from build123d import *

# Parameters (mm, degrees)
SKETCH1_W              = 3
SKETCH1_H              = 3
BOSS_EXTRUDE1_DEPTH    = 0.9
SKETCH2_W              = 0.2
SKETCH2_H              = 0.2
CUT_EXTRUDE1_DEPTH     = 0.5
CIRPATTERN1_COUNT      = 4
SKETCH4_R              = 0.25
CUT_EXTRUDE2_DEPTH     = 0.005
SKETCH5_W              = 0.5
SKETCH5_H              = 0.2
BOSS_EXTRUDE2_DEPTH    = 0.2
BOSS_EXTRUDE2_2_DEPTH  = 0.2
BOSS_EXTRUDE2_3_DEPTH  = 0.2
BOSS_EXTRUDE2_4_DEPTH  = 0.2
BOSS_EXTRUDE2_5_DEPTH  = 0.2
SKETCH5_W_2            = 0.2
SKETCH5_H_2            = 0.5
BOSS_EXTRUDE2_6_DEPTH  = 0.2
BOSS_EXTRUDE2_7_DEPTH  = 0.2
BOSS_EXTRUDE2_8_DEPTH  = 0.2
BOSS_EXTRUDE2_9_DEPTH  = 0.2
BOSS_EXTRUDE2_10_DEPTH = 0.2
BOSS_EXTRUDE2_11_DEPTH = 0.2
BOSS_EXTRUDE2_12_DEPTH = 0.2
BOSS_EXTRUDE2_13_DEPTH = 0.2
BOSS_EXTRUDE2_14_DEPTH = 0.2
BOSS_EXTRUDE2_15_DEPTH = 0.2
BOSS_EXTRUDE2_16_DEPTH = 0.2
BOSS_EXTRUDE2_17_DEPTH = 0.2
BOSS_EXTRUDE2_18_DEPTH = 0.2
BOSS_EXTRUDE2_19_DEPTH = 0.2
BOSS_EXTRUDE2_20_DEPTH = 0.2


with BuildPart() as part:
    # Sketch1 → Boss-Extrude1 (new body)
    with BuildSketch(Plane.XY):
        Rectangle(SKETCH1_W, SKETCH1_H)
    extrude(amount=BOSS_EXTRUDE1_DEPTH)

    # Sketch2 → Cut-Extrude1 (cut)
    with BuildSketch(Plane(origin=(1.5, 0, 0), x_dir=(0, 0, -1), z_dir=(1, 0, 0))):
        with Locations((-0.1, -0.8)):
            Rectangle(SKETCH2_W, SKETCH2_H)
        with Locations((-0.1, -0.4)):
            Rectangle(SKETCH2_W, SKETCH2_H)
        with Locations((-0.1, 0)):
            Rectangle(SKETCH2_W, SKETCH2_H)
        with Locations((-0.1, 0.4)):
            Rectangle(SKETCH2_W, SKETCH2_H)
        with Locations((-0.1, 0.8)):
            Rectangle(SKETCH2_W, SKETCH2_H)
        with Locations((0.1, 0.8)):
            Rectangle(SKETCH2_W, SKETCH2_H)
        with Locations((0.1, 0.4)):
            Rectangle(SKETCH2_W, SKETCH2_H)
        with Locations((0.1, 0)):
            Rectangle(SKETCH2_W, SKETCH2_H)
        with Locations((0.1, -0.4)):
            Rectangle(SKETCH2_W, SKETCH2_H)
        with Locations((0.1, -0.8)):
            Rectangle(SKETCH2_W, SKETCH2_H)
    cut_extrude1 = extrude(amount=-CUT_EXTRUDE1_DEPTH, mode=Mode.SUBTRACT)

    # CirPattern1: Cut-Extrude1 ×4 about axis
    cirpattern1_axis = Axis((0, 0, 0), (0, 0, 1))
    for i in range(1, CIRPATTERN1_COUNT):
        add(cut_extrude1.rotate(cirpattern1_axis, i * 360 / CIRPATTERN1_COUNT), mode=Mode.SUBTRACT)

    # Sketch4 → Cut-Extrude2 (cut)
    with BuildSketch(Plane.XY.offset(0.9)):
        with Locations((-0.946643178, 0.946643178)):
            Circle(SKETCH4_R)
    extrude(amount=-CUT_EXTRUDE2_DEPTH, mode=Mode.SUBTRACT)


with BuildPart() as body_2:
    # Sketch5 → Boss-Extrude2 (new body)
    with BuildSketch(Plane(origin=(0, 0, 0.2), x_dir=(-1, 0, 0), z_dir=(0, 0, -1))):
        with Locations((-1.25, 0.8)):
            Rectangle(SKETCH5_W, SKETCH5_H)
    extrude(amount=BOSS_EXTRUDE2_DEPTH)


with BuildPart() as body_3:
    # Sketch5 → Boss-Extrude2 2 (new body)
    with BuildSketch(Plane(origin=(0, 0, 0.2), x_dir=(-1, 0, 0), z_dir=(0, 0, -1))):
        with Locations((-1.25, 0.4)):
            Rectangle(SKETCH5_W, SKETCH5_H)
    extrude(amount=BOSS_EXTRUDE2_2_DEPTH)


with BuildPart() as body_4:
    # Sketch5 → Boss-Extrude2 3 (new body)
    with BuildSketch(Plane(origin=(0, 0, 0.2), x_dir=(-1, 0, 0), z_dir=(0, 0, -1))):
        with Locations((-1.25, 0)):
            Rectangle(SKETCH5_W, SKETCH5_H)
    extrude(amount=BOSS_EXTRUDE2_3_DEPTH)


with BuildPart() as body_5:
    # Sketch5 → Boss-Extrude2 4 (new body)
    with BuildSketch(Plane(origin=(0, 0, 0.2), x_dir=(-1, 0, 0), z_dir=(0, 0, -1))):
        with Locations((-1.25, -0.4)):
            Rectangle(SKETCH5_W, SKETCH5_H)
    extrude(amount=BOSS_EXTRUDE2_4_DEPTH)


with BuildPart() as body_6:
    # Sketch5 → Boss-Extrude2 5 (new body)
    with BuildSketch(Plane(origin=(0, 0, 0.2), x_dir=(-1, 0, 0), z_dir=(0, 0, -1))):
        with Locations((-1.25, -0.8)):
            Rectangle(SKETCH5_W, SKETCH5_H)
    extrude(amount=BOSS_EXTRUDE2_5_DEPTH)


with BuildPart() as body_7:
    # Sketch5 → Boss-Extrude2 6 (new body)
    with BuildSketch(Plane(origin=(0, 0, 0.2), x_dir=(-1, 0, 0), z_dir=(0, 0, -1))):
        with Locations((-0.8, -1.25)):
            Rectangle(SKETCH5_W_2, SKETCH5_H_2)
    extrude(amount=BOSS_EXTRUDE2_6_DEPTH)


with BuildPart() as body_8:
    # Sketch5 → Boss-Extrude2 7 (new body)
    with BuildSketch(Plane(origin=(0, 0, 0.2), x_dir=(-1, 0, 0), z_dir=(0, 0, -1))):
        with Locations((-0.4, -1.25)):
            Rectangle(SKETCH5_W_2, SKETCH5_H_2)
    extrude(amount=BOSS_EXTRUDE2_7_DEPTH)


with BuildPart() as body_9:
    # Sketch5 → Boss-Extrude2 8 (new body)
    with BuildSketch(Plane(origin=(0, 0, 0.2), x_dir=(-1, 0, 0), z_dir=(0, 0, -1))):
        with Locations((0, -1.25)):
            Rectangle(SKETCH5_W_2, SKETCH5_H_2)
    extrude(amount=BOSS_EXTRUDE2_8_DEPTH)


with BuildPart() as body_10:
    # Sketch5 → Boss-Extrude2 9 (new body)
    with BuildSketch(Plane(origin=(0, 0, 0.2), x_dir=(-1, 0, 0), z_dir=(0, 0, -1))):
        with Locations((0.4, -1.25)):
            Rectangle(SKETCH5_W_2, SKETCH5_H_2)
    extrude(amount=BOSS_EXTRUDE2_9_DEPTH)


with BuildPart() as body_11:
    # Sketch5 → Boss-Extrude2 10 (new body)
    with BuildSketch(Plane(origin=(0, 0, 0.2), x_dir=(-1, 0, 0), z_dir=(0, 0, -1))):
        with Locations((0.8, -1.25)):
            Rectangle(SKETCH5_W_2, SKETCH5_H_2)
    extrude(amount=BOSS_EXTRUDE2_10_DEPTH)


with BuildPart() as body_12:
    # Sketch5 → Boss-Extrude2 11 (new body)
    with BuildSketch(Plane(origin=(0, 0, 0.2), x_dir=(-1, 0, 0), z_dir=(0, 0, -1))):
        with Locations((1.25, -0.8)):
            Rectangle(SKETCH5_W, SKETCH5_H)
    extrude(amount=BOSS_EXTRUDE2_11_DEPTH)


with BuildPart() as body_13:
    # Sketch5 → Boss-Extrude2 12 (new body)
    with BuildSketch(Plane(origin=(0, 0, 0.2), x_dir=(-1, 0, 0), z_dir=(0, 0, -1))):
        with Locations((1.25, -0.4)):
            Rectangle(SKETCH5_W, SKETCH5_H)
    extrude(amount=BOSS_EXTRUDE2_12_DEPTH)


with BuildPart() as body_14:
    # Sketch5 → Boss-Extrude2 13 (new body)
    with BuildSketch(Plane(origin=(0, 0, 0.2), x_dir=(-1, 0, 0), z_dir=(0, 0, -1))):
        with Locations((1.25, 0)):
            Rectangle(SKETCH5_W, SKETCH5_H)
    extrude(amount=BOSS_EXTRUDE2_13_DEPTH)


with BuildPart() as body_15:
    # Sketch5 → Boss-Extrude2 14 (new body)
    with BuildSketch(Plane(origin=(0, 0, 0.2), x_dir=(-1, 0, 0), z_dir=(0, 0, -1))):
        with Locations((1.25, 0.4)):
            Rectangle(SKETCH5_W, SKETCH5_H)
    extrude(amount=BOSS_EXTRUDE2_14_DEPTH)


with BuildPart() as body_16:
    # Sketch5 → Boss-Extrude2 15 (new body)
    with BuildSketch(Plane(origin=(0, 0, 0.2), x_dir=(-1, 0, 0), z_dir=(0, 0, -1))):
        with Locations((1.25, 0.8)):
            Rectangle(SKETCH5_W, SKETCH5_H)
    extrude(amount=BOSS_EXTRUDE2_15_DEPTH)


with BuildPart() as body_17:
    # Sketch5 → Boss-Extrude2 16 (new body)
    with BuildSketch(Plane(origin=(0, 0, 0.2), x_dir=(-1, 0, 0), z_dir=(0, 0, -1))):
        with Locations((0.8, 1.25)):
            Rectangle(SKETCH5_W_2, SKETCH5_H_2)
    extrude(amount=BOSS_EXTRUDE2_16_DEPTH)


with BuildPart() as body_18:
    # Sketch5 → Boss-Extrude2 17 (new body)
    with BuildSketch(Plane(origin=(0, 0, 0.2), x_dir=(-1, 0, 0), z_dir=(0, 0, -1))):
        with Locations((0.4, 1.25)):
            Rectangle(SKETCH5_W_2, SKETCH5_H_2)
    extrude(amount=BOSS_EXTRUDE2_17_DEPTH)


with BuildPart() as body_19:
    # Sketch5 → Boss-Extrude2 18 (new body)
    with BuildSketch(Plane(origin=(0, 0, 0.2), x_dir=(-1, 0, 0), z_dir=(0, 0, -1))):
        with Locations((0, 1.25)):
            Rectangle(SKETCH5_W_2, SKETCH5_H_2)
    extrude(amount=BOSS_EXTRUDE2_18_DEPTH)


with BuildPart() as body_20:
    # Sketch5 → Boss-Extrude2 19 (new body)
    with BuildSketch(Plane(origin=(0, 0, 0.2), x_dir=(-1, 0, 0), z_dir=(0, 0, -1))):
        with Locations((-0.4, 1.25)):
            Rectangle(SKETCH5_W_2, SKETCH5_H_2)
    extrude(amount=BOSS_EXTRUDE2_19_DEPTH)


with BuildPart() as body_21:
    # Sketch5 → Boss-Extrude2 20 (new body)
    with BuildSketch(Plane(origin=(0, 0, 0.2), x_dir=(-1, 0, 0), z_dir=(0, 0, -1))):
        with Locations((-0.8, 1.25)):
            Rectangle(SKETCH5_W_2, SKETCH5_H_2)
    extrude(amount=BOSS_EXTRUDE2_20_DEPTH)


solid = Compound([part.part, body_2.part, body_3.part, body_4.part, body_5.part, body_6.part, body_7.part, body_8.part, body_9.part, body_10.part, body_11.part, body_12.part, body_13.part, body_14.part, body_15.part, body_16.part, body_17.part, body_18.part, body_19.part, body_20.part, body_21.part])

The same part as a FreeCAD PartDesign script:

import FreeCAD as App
import Part
import Sketcher
Q = App.Units.Quantity

doc = App.newDocument("Part")
params = doc.addObject("Spreadsheet::Sheet", "Params")
for row, (alias, value) in enumerate([
    ("sketch1_width", "3 mm"),
    ("pad1_length", "0.9 mm"),
    ("sketch2_width", "0.2 mm"),
    ("sketch2_height", "0.4 mm"),
    ("pocket1_length", "0.5 mm"),
    ("sketch3_diameter", "0.5 mm"),
    ("pocket2_length", "0.005 mm"),
    ("sketch4_width", "0.5 mm"),
    ("sketch4_height", "0.2 mm"),
    ("pad2_length", "0.2 mm"),
    ("sketch5_width", "0.5 mm"),
    ("sketch5_height", "0.2 mm"),
    ("pad3_length", "0.2 mm"),
    ("sketch6_width", "0.5 mm"),
    ("sketch6_height", "0.2 mm"),
    ("pad4_length", "0.2 mm"),
    ("sketch7_width", "0.5 mm"),
    ("sketch7_height", "0.2 mm"),
    ("pad5_length", "0.2 mm"),
    ("sketch8_width", "0.5 mm"),
    ("sketch8_height", "0.2 mm"),
    ("pad6_length", "0.2 mm"),
    ("sketch9_width", "0.2 mm"),
    ("sketch9_height", "0.5 mm"),
    ("pad7_length", "0.2 mm"),
    ("sketch10_width", "0.2 mm"),
    ("sketch10_height", "0.5 mm"),
    ("pad8_length", "0.2 mm"),
    ("sketch11_width", "0.2 mm"),
    ("sketch11_height", "0.5 mm"),
    ("pad9_length", "0.2 mm"),
    ("sketch12_width", "0.2 mm"),
    ("sketch12_height", "0.5 mm"),
    ("pad10_length", "0.2 mm"),
    ("sketch13_width", "0.2 mm"),
    ("sketch13_height", "0.5 mm"),
    ("pad11_length", "0.2 mm"),
    ("sketch14_width", "0.5 mm"),
    ("sketch14_height", "0.2 mm"),
    ("pad12_length", "0.2 mm"),
    ("sketch15_width", "0.5 mm"),
    ("sketch15_height", "0.2 mm"),
    ("pad13_length", "0.2 mm"),
    ("sketch16_width", "0.5 mm"),
    ("sketch16_height", "0.2 mm"),
    ("pad14_length", "0.2 mm"),
    ("sketch17_width", "0.5 mm"),
    ("sketch17_height", "0.2 mm"),
    ("pad15_length", "0.2 mm"),
    ("sketch18_width", "0.5 mm"),
    ("sketch18_height", "0.2 mm"),
    ("pad16_length", "0.2 mm"),
    ("sketch19_width", "0.2 mm"),
    ("sketch19_height", "0.5 mm"),
    ("pad17_length", "0.2 mm"),
    ("sketch20_width", "0.2 mm"),
    ("sketch20_height", "0.5 mm"),
    ("pad18_length", "0.2 mm"),
    ("sketch21_width", "0.2 mm"),
    ("sketch21_height", "0.5 mm"),
    ("pad19_length", "0.2 mm"),
    ("sketch22_width", "0.2 mm"),
    ("sketch22_height", "0.5 mm"),
    ("pad20_length", "0.2 mm"),
    ("sketch23_width", "0.2 mm"),
    ("sketch23_height", "0.5 mm"),
    ("pad21_length", "0.2 mm"),
], start=1):
    params.set(f"A{row}", alias)
    params.set(f"B{row}", "=" + value)
    params.setAlias(f"B{row}", alias)

body = doc.addObject("PartDesign::Body", "Body")

# Sketch on XY plane
sketch1 = body.newObject("Sketcher::SketchObject", "Sketch")
sketch1.AttachmentSupport = (doc.getObject("XY_Plane"), [""])
sketch1.MapMode = "FlatFace"
sketch1.addGeometry([
    Part.LineSegment(App.Vector(-1.5, 1.5, 0), App.Vector(-1.5, -1.5, 0)),
    Part.LineSegment(App.Vector(-1.5, -1.5, 0), App.Vector(1.5, -1.5, 0)),
    Part.LineSegment(App.Vector(1.5, -1.5, 0), App.Vector(1.5, 1.5, 0)),
    Part.LineSegment(App.Vector(1.5, 1.5, 0), App.Vector(-1.5, 1.5, 0)),
], False)
sketch1.addConstraint([
    Sketcher.Constraint("Coincident", 0, 2, 1, 1),
    Sketcher.Constraint("Coincident", 1, 2, 2, 1),
    Sketcher.Constraint("Coincident", 2, 2, 3, 1),
    Sketcher.Constraint("Coincident", 3, 2, 0, 1),
    Sketcher.Constraint("Vertical", 0),
    Sketcher.Constraint("Horizontal", 1),
    Sketcher.Constraint("Vertical", 2),
    Sketcher.Constraint("Horizontal", 3),
    Sketcher.Constraint("Symmetric", 0, 2, 2, 2, -1, 1),
    Sketcher.Constraint("Equal", 3, 0),
    Sketcher.Constraint("DistanceX", 1, 1, 1, 2, Q("3 mm")),
])
sketch1.setExpression("Constraints[10]", "Params.sketch1_width")
pad1 = body.newObject("PartDesign::Pad", "Pad")
pad1.Profile = sketch1
pad1.setExpression("Length", "Params.pad1_length")

# Sketch on YZ plane
sketch2 = body.newObject("Sketcher::SketchObject", "Sketch001")
sketch2.AttachmentSupport = (doc.getObject("YZ_Plane"), [""])
sketch2.MapMode = "FlatFace"
sketch2.AttachmentOffset = App.Placement(App.Vector(0, 0, 1.5), App.Rotation())
sketch2.addGeometry([
    Part.LineSegment(App.Vector(-0.7, 0.2, 0), App.Vector(-0.9, 0.2, 0)),  # 0
    Part.LineSegment(App.Vector(-0.9, 0.2, 0), App.Vector(-0.9, -0.2, 0)),  # 1
    Part.LineSegment(App.Vector(-0.9, -0.2, 0), App.Vector(-0.7, -0.2, 0)),  # 2
    Part.LineSegment(App.Vector(-0.7, -0.2, 0), App.Vector(-0.7, 0.2, 0)),  # 3
    Part.LineSegment(App.Vector(-0.3, 0.2, 0), App.Vector(-0.5, 0.2, 0)),  # 4
    Part.LineSegment(App.Vector(-0.5, 0.2, 0), App.Vector(-0.5, -0.2, 0)),  # 5
    Part.LineSegment(App.Vector(-0.5, -0.2, 0), App.Vector(-0.3, -0.2, 0)),  # 6
    Part.LineSegment(App.Vector(-0.3, -0.2, 0), App.Vector(-0.3, 0.2, 0)),  # 7
    Part.LineSegment(App.Vector(0.1, 0.2, 0), App.Vector(-0.1, 0.2, 0)),  # 8
    Part.LineSegment(App.Vector(-0.1, 0.2, 0), App.Vector(-0.1, -0.2, 0)),  # 9
    Part.LineSegment(App.Vector(-0.1, -0.2, 0), App.Vector(0.1, -0.2, 0)),  # 10
    Part.LineSegment(App.Vector(0.1, -0.2, 0), App.Vector(0.1, 0.2, 0)),  # 11
    Part.LineSegment(App.Vector(0.5, 0.2, 0), App.Vector(0.3, 0.2, 0)),  # 12
    Part.LineSegment(App.Vector(0.3, 0.2, 0), App.Vector(0.3, -0.2, 0)),  # 13
    Part.LineSegment(App.Vector(0.3, -0.2, 0), App.Vector(0.5, -0.2, 0)),  # 14
    Part.LineSegment(App.Vector(0.5, -0.2, 0), App.Vector(0.5, 0.2, 0)),  # 15
    Part.LineSegment(App.Vector(0.9, 0.2, 0), App.Vector(0.7, 0.2, 0)),  # 16
    Part.LineSegment(App.Vector(0.7, 0.2, 0), App.Vector(0.7, -0.2, 0)),  # 17
    Part.LineSegment(App.Vector(0.7, -0.2, 0), App.Vector(0.9, -0.2, 0)),  # 18
    Part.LineSegment(App.Vector(0.9, -0.2, 0), App.Vector(0.9, 0.2, 0)),  # 19
], False)
sketch2.addConstraint([
    Sketcher.Constraint("Coincident", 0, 2, 1, 1),
    Sketcher.Constraint("Coincident", 1, 2, 2, 1),
    Sketcher.Constraint("Coincident", 2, 2, 3, 1),
    Sketcher.Constraint("Coincident", 3, 2, 0, 1),
    Sketcher.Constraint("Coincident", 4, 2, 5, 1),
    Sketcher.Constraint("Coincident", 5, 2, 6, 1),
    Sketcher.Constraint("Coincident", 6, 2, 7, 1),
    Sketcher.Constraint("Coincident", 7, 2, 4, 1),
    Sketcher.Constraint("Coincident", 8, 2, 9, 1),
    Sketcher.Constraint("Coincident", 9, 2, 10, 1),
    Sketcher.Constraint("Coincident", 10, 2, 11, 1),
    Sketcher.Constraint("Coincident", 11, 2, 8, 1),
    Sketcher.Constraint("Coincident", 12, 2, 13, 1),
    Sketcher.Constraint("Coincident", 13, 2, 14, 1),
    Sketcher.Constraint("Coincident", 14, 2, 15, 1),
    Sketcher.Constraint("Coincident", 15, 2, 12, 1),
    Sketcher.Constraint("Coincident", 16, 2, 17, 1),
    Sketcher.Constraint("Coincident", 17, 2, 18, 1),
    Sketcher.Constraint("Coincident", 18, 2, 19, 1),
    Sketcher.Constraint("Coincident", 19, 2, 16, 1),
    Sketcher.Constraint("Horizontal", 0),
    Sketcher.Constraint("Vertical", 1),
    Sketcher.Constraint("Horizontal", 2),
    Sketcher.Constraint("Vertical", 3),
    Sketcher.Constraint("Horizontal", 4),
    Sketcher.Constraint("Vertical", 5),
    Sketcher.Constraint("Horizontal", 6),
    Sketcher.Constraint("Vertical", 7),
    Sketcher.Constraint("Horizontal", 8),
    Sketcher.Constraint("Vertical", 9),
    Sketcher.Constraint("Horizontal", 10),
    Sketcher.Constraint("Vertical", 11),
    Sketcher.Constraint("Horizontal", 12),
    Sketcher.Constraint("Vertical", 13),
    Sketcher.Constraint("Horizontal", 14),
    Sketcher.Constraint("Vertical", 15),
    Sketcher.Constraint("Horizontal", 16),
    Sketcher.Constraint("Vertical", 17),
    Sketcher.Constraint("Horizontal", 18),
    Sketcher.Constraint("Vertical", 19),
    Sketcher.Constraint("Symmetric", 8, 2, 10, 2, -1, 1),
    Sketcher.Constraint("Symmetric", 6, 2, 12, 2, -1, 1),
    Sketcher.Constraint("Symmetric", 4, 2, 14, 2, -1, 1),
    Sketcher.Constraint("Symmetric", 2, 2, 16, 2, -1, 1),
    Sketcher.Constraint("Symmetric", 0, 2, 18, 2, -1, 1),
    Sketcher.Constraint("Horizontal", 3, 2, 4, 2),
    Sketcher.Constraint("Horizontal", 2, 2, 5, 2),
    Sketcher.Constraint("Horizontal", 7, 2, 8, 2),
    Sketcher.Constraint("Horizontal", 6, 2, 9, 2),
    Sketcher.Constraint("Equal", 2, 4),
    Sketcher.Constraint("Equal", 6, 8),
    Sketcher.Constraint("DistanceX", 0, 2, 0, 1, Q("0.2 mm")),
    Sketcher.Constraint("DistanceY", 1, 2, 1, 1, Q("0.4 mm")),
    Sketcher.Constraint("DistanceX", 0, 2, -1, 1, Q("0.9 mm")),
    Sketcher.Constraint("DistanceX", 4, 2, -1, 1, Q("0.5 mm")),
])
sketch2.setExpression("Constraints[51]", "Params.sketch2_width")
sketch2.setExpression("Constraints[52]", "Params.sketch2_height")
pocket1 = body.newObject("PartDesign::Pocket", "Pocket")
pocket1.Profile = sketch2
pocket1.setExpression("Length", "Params.pocket1_length")
doc.recompute()

polarpattern = body.newObject("PartDesign::PolarPattern", "PolarPattern")
polarpattern.Originals = [pocket1]
polarpattern.Axis = (doc.getObject("Z_Axis"), [""])
polarpattern.Angle = 360
polarpattern.Occurrences = 4
body.Tip = polarpattern

# Sketch on XY plane
sketch3 = body.newObject("Sketcher::SketchObject", "Sketch002")
sketch3.AttachmentSupport = (doc.getObject("XY_Plane"), [""])
sketch3.MapMode = "FlatFace"
sketch3.AttachmentOffset = App.Placement(App.Vector(0, 0, 0.9), App.Rotation())
sketch3.addGeometry(Part.Circle(App.Vector(-0.95, 0.95, 0), App.Vector(0, 0, 1), 0.25), False)
sketch3.addConstraint([
    Sketcher.Constraint("Diameter", 0, Q("0.5 mm")),
    Sketcher.Constraint("DistanceX", 0, 3, -1, 1, Q("0.946643 mm")),
    Sketcher.Constraint("DistanceY", -1, 1, 0, 3, Q("0.946643 mm")),
])
sketch3.setExpression("Constraints[0]", "Params.sketch3_diameter")
pocket2 = body.newObject("PartDesign::Pocket", "Pocket001")
pocket2.Profile = sketch3
pocket2.setExpression("Length", "Params.pocket2_length")
body2 = doc.addObject("PartDesign::Body", "Body001")

# Sketch on XY plane
sketch4 = body2.newObject("Sketcher::SketchObject", "Sketch003")
sketch4.AttachmentSupport = (doc.getObject("XY_Plane001"), [""])
sketch4.MapMode = "FlatFace"
sketch4.AttachmentOffset = App.Placement(App.Vector(0, 0, 0.2), App.Rotation())
sketch4.addGeometry([
    Part.LineSegment(App.Vector(1.5, 0.9, 0), App.Vector(1.5, 0.7, 0)),
    Part.LineSegment(App.Vector(1.5, 0.7, 0), App.Vector(1, 0.7, 0)),
    Part.LineSegment(App.Vector(1, 0.7, 0), App.Vector(1, 0.9, 0)),
    Part.LineSegment(App.Vector(1, 0.9, 0), App.Vector(1.5, 0.9, 0)),
], False)
sketch4.addConstraint([
    Sketcher.Constraint("Coincident", 0, 2, 1, 1),
    Sketcher.Constraint("Coincident", 1, 2, 2, 1),
    Sketcher.Constraint("Coincident", 2, 2, 3, 1),
    Sketcher.Constraint("Coincident", 3, 2, 0, 1),
    Sketcher.Constraint("Vertical", 0),
    Sketcher.Constraint("Horizontal", 1),
    Sketcher.Constraint("Vertical", 2),
    Sketcher.Constraint("Horizontal", 3),
    Sketcher.Constraint("DistanceX", 1, 2, 1, 1, Q("0.5 mm")),
    Sketcher.Constraint("DistanceY", 0, 2, 0, 1, Q("0.2 mm")),
    Sketcher.Constraint("DistanceX", -1, 1, 1, 2, Q("1 mm")),
    Sketcher.Constraint("DistanceY", -1, 1, 0, 2, Q("0.7 mm")),
])
sketch4.setExpression("Constraints[8]", "Params.sketch4_width")
sketch4.setExpression("Constraints[9]", "Params.sketch4_height")
pad2 = body2.newObject("PartDesign::Pad", "Pad001")
pad2.Profile = sketch4
pad2.setExpression("Length", "Params.pad2_length")
pad2.Reversed = True
body3 = doc.addObject("PartDesign::Body", "Body002")

# Sketch on XY plane
sketch5 = body3.newObject("Sketcher::SketchObject", "Sketch004")
sketch5.AttachmentSupport = (doc.getObject("XY_Plane002"), [""])
sketch5.MapMode = "FlatFace"
sketch5.AttachmentOffset = App.Placement(App.Vector(0, 0, 0.2), App.Rotation())
sketch5.addGeometry([
    Part.LineSegment(App.Vector(1.5, 0.5, 0), App.Vector(1.5, 0.3, 0)),
    Part.LineSegment(App.Vector(1.5, 0.3, 0), App.Vector(1, 0.3, 0)),
    Part.LineSegment(App.Vector(1, 0.3, 0), App.Vector(1, 0.5, 0)),
    Part.LineSegment(App.Vector(1, 0.5, 0), App.Vector(1.5, 0.5, 0)),
], False)
sketch5.addConstraint([
    Sketcher.Constraint("Coincident", 0, 2, 1, 1),
    Sketcher.Constraint("Coincident", 1, 2, 2, 1),
    Sketcher.Constraint("Coincident", 2, 2, 3, 1),
    Sketcher.Constraint("Coincident", 3, 2, 0, 1),
    Sketcher.Constraint("Vertical", 0),
    Sketcher.Constraint("Horizontal", 1),
    Sketcher.Constraint("Vertical", 2),
    Sketcher.Constraint("Horizontal", 3),
    Sketcher.Constraint("DistanceX", 1, 2, 1, 1, Q("0.5 mm")),
    Sketcher.Constraint("DistanceY", 0, 2, 0, 1, Q("0.2 mm")),
    Sketcher.Constraint("DistanceX", -1, 1, 1, 2, Q("1 mm")),
    Sketcher.Constraint("DistanceY", -1, 1, 0, 2, Q("0.3 mm")),
])
sketch5.setExpression("Constraints[8]", "Params.sketch5_width")
sketch5.setExpression("Constraints[9]", "Params.sketch5_height")
pad3 = body3.newObject("PartDesign::Pad", "Pad002")
pad3.Profile = sketch5
pad3.setExpression("Length", "Params.pad3_length")
pad3.Reversed = True
body4 = doc.addObject("PartDesign::Body", "Body003")

# Sketch on XY plane
sketch6 = body4.newObject("Sketcher::SketchObject", "Sketch005")
sketch6.AttachmentSupport = (doc.getObject("XY_Plane003"), [""])
sketch6.MapMode = "FlatFace"
sketch6.AttachmentOffset = App.Placement(App.Vector(0, 0, 0.2), App.Rotation())
sketch6.addGeometry([
    Part.LineSegment(App.Vector(1.5, 0.1, 0), App.Vector(1.5, -0.1, 0)),
    Part.LineSegment(App.Vector(1.5, -0.1, 0), App.Vector(1, -0.1, 0)),
    Part.LineSegment(App.Vector(1, -0.1, 0), App.Vector(1, 0.1, 0)),
    Part.LineSegment(App.Vector(1, 0.1, 0), App.Vector(1.5, 0.1, 0)),
], False)
sketch6.addConstraint([
    Sketcher.Constraint("Coincident", 0, 2, 1, 1),
    Sketcher.Constraint("Coincident", 1, 2, 2, 1),
    Sketcher.Constraint("Coincident", 2, 2, 3, 1),
    Sketcher.Constraint("Coincident", 3, 2, 0, 1),
    Sketcher.Constraint("Vertical", 0),
    Sketcher.Constraint("Horizontal", 1),
    Sketcher.Constraint("Vertical", 2),
    Sketcher.Constraint("Horizontal", 3),
    Sketcher.Constraint("DistanceX", 1, 2, 1, 1, Q("0.5 mm")),
    Sketcher.Constraint("DistanceY", 0, 2, 0, 1, Q("0.2 mm")),
    Sketcher.Constraint("DistanceX", -1, 1, 1, 2, Q("1 mm")),
    Sketcher.Constraint("DistanceY", 0, 2, -1, 1, Q("0.1 mm")),
])
sketch6.setExpression("Constraints[8]", "Params.sketch6_width")
sketch6.setExpression("Constraints[9]", "Params.sketch6_height")
pad4 = body4.newObject("PartDesign::Pad", "Pad003")
pad4.Profile = sketch6
pad4.setExpression("Length", "Params.pad4_length")
pad4.Reversed = True
body5 = doc.addObject("PartDesign::Body", "Body004")

# Sketch on XY plane
sketch7 = body5.newObject("Sketcher::SketchObject", "Sketch006")
sketch7.AttachmentSupport = (doc.getObject("XY_Plane004"), [""])
sketch7.MapMode = "FlatFace"
sketch7.AttachmentOffset = App.Placement(App.Vector(0, 0, 0.2), App.Rotation())
sketch7.addGeometry([
    Part.LineSegment(App.Vector(1.5, -0.3, 0), App.Vector(1.5, -0.5, 0)),
    Part.LineSegment(App.Vector(1.5, -0.5, 0), App.Vector(1, -0.5, 0)),
    Part.LineSegment(App.Vector(1, -0.5, 0), App.Vector(1, -0.3, 0)),
    Part.LineSegment(App.Vector(1, -0.3, 0), App.Vector(1.5, -0.3, 0)),
], False)
sketch7.addConstraint([
    Sketcher.Constraint("Coincident", 0, 2, 1, 1),
    Sketcher.Constraint("Coincident", 1, 2, 2, 1),
    Sketcher.Constraint("Coincident", 2, 2, 3, 1),
    Sketcher.Constraint("Coincident", 3, 2, 0, 1),
    Sketcher.Constraint("Vertical", 0),
    Sketcher.Constraint("Horizontal", 1),
    Sketcher.Constraint("Vertical", 2),
    Sketcher.Constraint("Horizontal", 3),
    Sketcher.Constraint("DistanceX", 1, 2, 1, 1, Q("0.5 mm")),
    Sketcher.Constraint("DistanceY", 0, 2, 0, 1, Q("0.2 mm")),
    Sketcher.Constraint("DistanceX", -1, 1, 1, 2, Q("1 mm")),
    Sketcher.Constraint("DistanceY", 0, 2, -1, 1, Q("0.5 mm")),
])
sketch7.setExpression("Constraints[8]", "Params.sketch7_width")
sketch7.setExpression("Constraints[9]", "Params.sketch7_height")
pad5 = body5.newObject("PartDesign::Pad", "Pad004")
pad5.Profile = sketch7
pad5.setExpression("Length", "Params.pad5_length")
pad5.Reversed = True
body6 = doc.addObject("PartDesign::Body", "Body005")

# Sketch on XY plane
sketch8 = body6.newObject("Sketcher::SketchObject", "Sketch007")
sketch8.AttachmentSupport = (doc.getObject("XY_Plane005"), [""])
sketch8.MapMode = "FlatFace"
sketch8.AttachmentOffset = App.Placement(App.Vector(0, 0, 0.2), App.Rotation())
sketch8.addGeometry([
    Part.LineSegment(App.Vector(1.5, -0.7, 0), App.Vector(1.5, -0.9, 0)),
    Part.LineSegment(App.Vector(1.5, -0.9, 0), App.Vector(1, -0.9, 0)),
    Part.LineSegment(App.Vector(1, -0.9, 0), App.Vector(1, -0.7, 0)),
    Part.LineSegment(App.Vector(1, -0.7, 0), App.Vector(1.5, -0.7, 0)),
], False)
sketch8.addConstraint([
    Sketcher.Constraint("Coincident", 0, 2, 1, 1),
    Sketcher.Constraint("Coincident", 1, 2, 2, 1),
    Sketcher.Constraint("Coincident", 2, 2, 3, 1),
    Sketcher.Constraint("Coincident", 3, 2, 0, 1),
    Sketcher.Constraint("Vertical", 0),
    Sketcher.Constraint("Horizontal", 1),
    Sketcher.Constraint("Vertical", 2),
    Sketcher.Constraint("Horizontal", 3),
    Sketcher.Constraint("DistanceX", 1, 2, 1, 1, Q("0.5 mm")),
    Sketcher.Constraint("DistanceY", 0, 2, 0, 1, Q("0.2 mm")),
    Sketcher.Constraint("DistanceX", -1, 1, 1, 2, Q("1 mm")),
    Sketcher.Constraint("DistanceY", 0, 2, -1, 1, Q("0.9 mm")),
])
sketch8.setExpression("Constraints[8]", "Params.sketch8_width")
sketch8.setExpression("Constraints[9]", "Params.sketch8_height")
pad6 = body6.newObject("PartDesign::Pad", "Pad005")
pad6.Profile = sketch8
pad6.setExpression("Length", "Params.pad6_length")
pad6.Reversed = True
body7 = doc.addObject("PartDesign::Body", "Body006")

# Sketch on XY plane
sketch9 = body7.newObject("Sketcher::SketchObject", "Sketch008")
sketch9.AttachmentSupport = (doc.getObject("XY_Plane006"), [""])
sketch9.MapMode = "FlatFace"
sketch9.AttachmentOffset = App.Placement(App.Vector(0, 0, 0.2), App.Rotation())
sketch9.addGeometry([
    Part.LineSegment(App.Vector(0.9, -1, 0), App.Vector(0.9, -1.5, 0)),
    Part.LineSegment(App.Vector(0.9, -1.5, 0), App.Vector(0.7, -1.5, 0)),
    Part.LineSegment(App.Vector(0.7, -1.5, 0), App.Vector(0.7, -1, 0)),
    Part.LineSegment(App.Vector(0.7, -1, 0), App.Vector(0.9, -1, 0)),
], False)
sketch9.addConstraint([
    Sketcher.Constraint("Coincident", 0, 2, 1, 1),
    Sketcher.Constraint("Coincident", 1, 2, 2, 1),
    Sketcher.Constraint("Coincident", 2, 2, 3, 1),
    Sketcher.Constraint("Coincident", 3, 2, 0, 1),
    Sketcher.Constraint("Vertical", 0),
    Sketcher.Constraint("Horizontal", 1),
    Sketcher.Constraint("Vertical", 2),
    Sketcher.Constraint("Horizontal", 3),
    Sketcher.Constraint("DistanceX", 1, 2, 1, 1, Q("0.2 mm")),
    Sketcher.Constraint("DistanceY", 0, 2, 0, 1, Q("0.5 mm")),
    Sketcher.Constraint("DistanceY", 2, 2, -1, 1, Q("1 mm")),
    Sketcher.Constraint("DistanceX", -1, 1, 0, 2, Q("0.9 mm")),
])
sketch9.setExpression("Constraints[8]", "Params.sketch9_width")
sketch9.setExpression("Constraints[9]", "Params.sketch9_height")
pad7 = body7.newObject("PartDesign::Pad", "Pad006")
pad7.Profile = sketch9
pad7.setExpression("Length", "Params.pad7_length")
pad7.Reversed = True
body8 = doc.addObject("PartDesign::Body", "Body007")

# Sketch on XY plane
sketch10 = body8.newObject("Sketcher::SketchObject", "Sketch009")
sketch10.AttachmentSupport = (doc.getObject("XY_Plane007"), [""])
sketch10.MapMode = "FlatFace"
sketch10.AttachmentOffset = App.Placement(App.Vector(0, 0, 0.2), App.Rotation())
sketch10.addGeometry([
    Part.LineSegment(App.Vector(0.5, -1, 0), App.Vector(0.5, -1.5, 0)),
    Part.LineSegment(App.Vector(0.5, -1.5, 0), App.Vector(0.3, -1.5, 0)),
    Part.LineSegment(App.Vector(0.3, -1.5, 0), App.Vector(0.3, -1, 0)),
    Part.LineSegment(App.Vector(0.3, -1, 0), App.Vector(0.5, -1, 0)),
], False)
sketch10.addConstraint([
    Sketcher.Constraint("Coincident", 0, 2, 1, 1),
    Sketcher.Constraint("Coincident", 1, 2, 2, 1),
    Sketcher.Constraint("Coincident", 2, 2, 3, 1),
    Sketcher.Constraint("Coincident", 3, 2, 0, 1),
    Sketcher.Constraint("Vertical", 0),
    Sketcher.Constraint("Horizontal", 1),
    Sketcher.Constraint("Vertical", 2),
    Sketcher.Constraint("Horizontal", 3),
    Sketcher.Constraint("DistanceX", 1, 2, 1, 1, Q("0.2 mm")),
    Sketcher.Constraint("DistanceY", 0, 2, 0, 1, Q("0.5 mm")),
    Sketcher.Constraint("DistanceY", 2, 2, -1, 1, Q("1 mm")),
    Sketcher.Constraint("DistanceX", -1, 1, 0, 2, Q("0.5 mm")),
])
sketch10.setExpression("Constraints[8]", "Params.sketch10_width")
sketch10.setExpression("Constraints[9]", "Params.sketch10_height")
pad8 = body8.newObject("PartDesign::Pad", "Pad007")
pad8.Profile = sketch10
pad8.setExpression("Length", "Params.pad8_length")
pad8.Reversed = True
body9 = doc.addObject("PartDesign::Body", "Body008")

# Sketch on XY plane
sketch11 = body9.newObject("Sketcher::SketchObject", "Sketch010")
sketch11.AttachmentSupport = (doc.getObject("XY_Plane008"), [""])
sketch11.MapMode = "FlatFace"
sketch11.AttachmentOffset = App.Placement(App.Vector(0, 0, 0.2), App.Rotation())
sketch11.addGeometry([
    Part.LineSegment(App.Vector(0.1, -1, 0), App.Vector(0.1, -1.5, 0)),
    Part.LineSegment(App.Vector(0.1, -1.5, 0), App.Vector(-0.1, -1.5, 0)),
    Part.LineSegment(App.Vector(-0.1, -1.5, 0), App.Vector(-0.1, -1, 0)),
    Part.LineSegment(App.Vector(-0.1, -1, 0), App.Vector(0.1, -1, 0)),
], False)
sketch11.addConstraint([
    Sketcher.Constraint("Coincident", 0, 2, 1, 1),
    Sketcher.Constraint("Coincident", 1, 2, 2, 1),
    Sketcher.Constraint("Coincident", 2, 2, 3, 1),
    Sketcher.Constraint("Coincident", 3, 2, 0, 1),
    Sketcher.Constraint("Vertical", 0),
    Sketcher.Constraint("Horizontal", 1),
    Sketcher.Constraint("Vertical", 2),
    Sketcher.Constraint("Horizontal", 3),
    Sketcher.Constraint("DistanceX", 1, 2, 1, 1, Q("0.2 mm")),
    Sketcher.Constraint("DistanceY", 0, 2, 0, 1, Q("0.5 mm")),
    Sketcher.Constraint("DistanceY", 2, 2, -1, 1, Q("1 mm")),
    Sketcher.Constraint("DistanceX", -1, 1, 0, 2, Q("0.1 mm")),
])
sketch11.setExpression("Constraints[8]", "Params.sketch11_width")
sketch11.setExpression("Constraints[9]", "Params.sketch11_height")
pad9 = body9.newObject("PartDesign::Pad", "Pad008")
pad9.Profile = sketch11
pad9.setExpression("Length", "Params.pad9_length")
pad9.Reversed = True
body10 = doc.addObject("PartDesign::Body", "Body009")

# Sketch on XY plane
sketch12 = body10.newObject("Sketcher::SketchObject", "Sketch011")
sketch12.AttachmentSupport = (doc.getObject("XY_Plane009"), [""])
sketch12.MapMode = "FlatFace"
sketch12.AttachmentOffset = App.Placement(App.Vector(0, 0, 0.2), App.Rotation())
sketch12.addGeometry([
    Part.LineSegment(App.Vector(-0.3, -1, 0), App.Vector(-0.3, -1.5, 0)),
    Part.LineSegment(App.Vector(-0.3, -1.5, 0), App.Vector(-0.5, -1.5, 0)),
    Part.LineSegment(App.Vector(-0.5, -1.5, 0), App.Vector(-0.5, -1, 0)),
    Part.LineSegment(App.Vector(-0.5, -1, 0), App.Vector(-0.3, -1, 0)),
], False)
sketch12.addConstraint([
    Sketcher.Constraint("Coincident", 0, 2, 1, 1),
    Sketcher.Constraint("Coincident", 1, 2, 2, 1),
    Sketcher.Constraint("Coincident", 2, 2, 3, 1),
    Sketcher.Constraint("Coincident", 3, 2, 0, 1),
    Sketcher.Constraint("Vertical", 0),
    Sketcher.Constraint("Horizontal", 1),
    Sketcher.Constraint("Vertical", 2),
    Sketcher.Constraint("Horizontal", 3),
    Sketcher.Constraint("DistanceX", 1, 2, 1, 1, Q("0.2 mm")),
    Sketcher.Constraint("DistanceY", 0, 2, 0, 1, Q("0.5 mm")),
    Sketcher.Constraint("DistanceY", 2, 2, -1, 1, Q("1 mm")),
    Sketcher.Constraint("DistanceX", 0, 2, -1, 1, Q("0.3 mm")),
])
sketch12.setExpression("Constraints[8]", "Params.sketch12_width")
sketch12.setExpression("Constraints[9]", "Params.sketch12_height")
pad10 = body10.newObject("PartDesign::Pad", "Pad009")
pad10.Profile = sketch12
pad10.setExpression("Length", "Params.pad10_length")
pad10.Reversed = True
body11 = doc.addObject("PartDesign::Body", "Body010")

# Sketch on XY plane
sketch13 = body11.newObject("Sketcher::SketchObject", "Sketch012")
sketch13.AttachmentSupport = (doc.getObject("XY_Plane010"), [""])
sketch13.MapMode = "FlatFace"
sketch13.AttachmentOffset = App.Placement(App.Vector(0, 0, 0.2), App.Rotation())
sketch13.addGeometry([
    Part.LineSegment(App.Vector(-0.7, -1, 0), App.Vector(-0.7, -1.5, 0)),
    Part.LineSegment(App.Vector(-0.7, -1.5, 0), App.Vector(-0.9, -1.5, 0)),
    Part.LineSegment(App.Vector(-0.9, -1.5, 0), App.Vector(-0.9, -1, 0)),
    Part.LineSegment(App.Vector(-0.9, -1, 0), App.Vector(-0.7, -1, 0)),
], False)
sketch13.addConstraint([
    Sketcher.Constraint("Coincident", 0, 2, 1, 1),
    Sketcher.Constraint("Coincident", 1, 2, 2, 1),
    Sketcher.Constraint("Coincident", 2, 2, 3, 1),
    Sketcher.Constraint("Coincident", 3, 2, 0, 1),
    Sketcher.Constraint("Vertical", 0),
    Sketcher.Constraint("Horizontal", 1),
    Sketcher.Constraint("Vertical", 2),
    Sketcher.Constraint("Horizontal", 3),
    Sketcher.Constraint("DistanceX", 1, 2, 1, 1, Q("0.2 mm")),
    Sketcher.Constraint("DistanceY", 0, 2, 0, 1, Q("0.5 mm")),
    Sketcher.Constraint("DistanceY", 2, 2, -1, 1, Q("1 mm")),
    Sketcher.Constraint("DistanceX", 0, 2, -1, 1, Q("0.7 mm")),
])
sketch13.setExpression("Constraints[8]", "Params.sketch13_width")
sketch13.setExpression("Constraints[9]", "Params.sketch13_height")
pad11 = body11.newObject("PartDesign::Pad", "Pad010")
pad11.Profile = sketch13
pad11.setExpression("Length", "Params.pad11_length")
pad11.Reversed = True
body12 = doc.addObject("PartDesign::Body", "Body011")

# Sketch on XY plane
sketch14 = body12.newObject("Sketcher::SketchObject", "Sketch013")
sketch14.AttachmentSupport = (doc.getObject("XY_Plane011"), [""])
sketch14.MapMode = "FlatFace"
sketch14.AttachmentOffset = App.Placement(App.Vector(0, 0, 0.2), App.Rotation())
sketch14.addGeometry([
    Part.LineSegment(App.Vector(-1, -0.7, 0), App.Vector(-1, -0.9, 0)),
    Part.LineSegment(App.Vector(-1, -0.9, 0), App.Vector(-1.5, -0.9, 0)),
    Part.LineSegment(App.Vector(-1.5, -0.9, 0), App.Vector(-1.5, -0.7, 0)),
    Part.LineSegment(App.Vector(-1.5, -0.7, 0), App.Vector(-1, -0.7, 0)),
], False)
sketch14.addConstraint([
    Sketcher.Constraint("Coincident", 0, 2, 1, 1),
    Sketcher.Constraint("Coincident", 1, 2, 2, 1),
    Sketcher.Constraint("Coincident", 2, 2, 3, 1),
    Sketcher.Constraint("Coincident", 3, 2, 0, 1),
    Sketcher.Constraint("Vertical", 0),
    Sketcher.Constraint("Horizontal", 1),
    Sketcher.Constraint("Vertical", 2),
    Sketcher.Constraint("Horizontal", 3),
    Sketcher.Constraint("DistanceX", 1, 2, 1, 1, Q("0.5 mm")),
    Sketcher.Constraint("DistanceY", 0, 2, 0, 1, Q("0.2 mm")),
    Sketcher.Constraint("DistanceX", 0, 2, -1, 1, Q("1 mm")),
    Sketcher.Constraint("DistanceY", 0, 2, -1, 1, Q("0.9 mm")),
])
sketch14.setExpression("Constraints[8]", "Params.sketch14_width")
sketch14.setExpression("Constraints[9]", "Params.sketch14_height")
pad12 = body12.newObject("PartDesign::Pad", "Pad011")
pad12.Profile = sketch14
pad12.setExpression("Length", "Params.pad12_length")
pad12.Reversed = True
body13 = doc.addObject("PartDesign::Body", "Body012")

# Sketch on XY plane
sketch15 = body13.newObject("Sketcher::SketchObject", "Sketch014")
sketch15.AttachmentSupport = (doc.getObject("XY_Plane012"), [""])
sketch15.MapMode = "FlatFace"
sketch15.AttachmentOffset = App.Placement(App.Vector(0, 0, 0.2), App.Rotation())
sketch15.addGeometry([
    Part.LineSegment(App.Vector(-1, -0.3, 0), App.Vector(-1, -0.5, 0)),
    Part.LineSegment(App.Vector(-1, -0.5, 0), App.Vector(-1.5, -0.5, 0)),
    Part.LineSegment(App.Vector(-1.5, -0.5, 0), App.Vector(-1.5, -0.3, 0)),
    Part.LineSegment(App.Vector(-1.5, -0.3, 0), App.Vector(-1, -0.3, 0)),
], False)
sketch15.addConstraint([
    Sketcher.Constraint("Coincident", 0, 2, 1, 1),
    Sketcher.Constraint("Coincident", 1, 2, 2, 1),
    Sketcher.Constraint("Coincident", 2, 2, 3, 1),
    Sketcher.Constraint("Coincident", 3, 2, 0, 1),
    Sketcher.Constraint("Vertical", 0),
    Sketcher.Constraint("Horizontal", 1),
    Sketcher.Constraint("Vertical", 2),
    Sketcher.Constraint("Horizontal", 3),
    Sketcher.Constraint("DistanceX", 1, 2, 1, 1, Q("0.5 mm")),
    Sketcher.Constraint("DistanceY", 0, 2, 0, 1, Q("0.2 mm")),
    Sketcher.Constraint("DistanceX", 0, 2, -1, 1, Q("1 mm")),
    Sketcher.Constraint("DistanceY", 0, 2, -1, 1, Q("0.5 mm")),
])
sketch15.setExpression("Constraints[8]", "Params.sketch15_width")
sketch15.setExpression("Constraints[9]", "Params.sketch15_height")
pad13 = body13.newObject("PartDesign::Pad", "Pad012")
pad13.Profile = sketch15
pad13.setExpression("Length", "Params.pad13_length")
pad13.Reversed = True
body14 = doc.addObject("PartDesign::Body", "Body013")

# Sketch on XY plane
sketch16 = body14.newObject("Sketcher::SketchObject", "Sketch015")
sketch16.AttachmentSupport = (doc.getObject("XY_Plane013"), [""])
sketch16.MapMode = "FlatFace"
sketch16.AttachmentOffset = App.Placement(App.Vector(0, 0, 0.2), App.Rotation())
sketch16.addGeometry([
    Part.LineSegment(App.Vector(-1, 0.1, 0), App.Vector(-1, -0.1, 0)),
    Part.LineSegment(App.Vector(-1, -0.1, 0), App.Vector(-1.5, -0.1, 0)),
    Part.LineSegment(App.Vector(-1.5, -0.1, 0), App.Vector(-1.5, 0.1, 0)),
    Part.LineSegment(App.Vector(-1.5, 0.1, 0), App.Vector(-1, 0.1, 0)),
], False)
sketch16.addConstraint([
    Sketcher.Constraint("Coincident", 0, 2, 1, 1),
    Sketcher.Constraint("Coincident", 1, 2, 2, 1),
    Sketcher.Constraint("Coincident", 2, 2, 3, 1),
    Sketcher.Constraint("Coincident", 3, 2, 0, 1),
    Sketcher.Constraint("Vertical", 0),
    Sketcher.Constraint("Horizontal", 1),
    Sketcher.Constraint("Vertical", 2),
    Sketcher.Constraint("Horizontal", 3),
    Sketcher.Constraint("DistanceX", 1, 2, 1, 1, Q("0.5 mm")),
    Sketcher.Constraint("DistanceY", 0, 2, 0, 1, Q("0.2 mm")),
    Sketcher.Constraint("DistanceX", 0, 2, -1, 1, Q("1 mm")),
    Sketcher.Constraint("DistanceY", 0, 2, -1, 1, Q("0.1 mm")),
])
sketch16.setExpression("Constraints[8]", "Params.sketch16_width")
sketch16.setExpression("Constraints[9]", "Params.sketch16_height")
pad14 = body14.newObject("PartDesign::Pad", "Pad013")
pad14.Profile = sketch16
pad14.setExpression("Length", "Params.pad14_length")
pad14.Reversed = True
body15 = doc.addObject("PartDesign::Body", "Body014")

# Sketch on XY plane
sketch17 = body15.newObject("Sketcher::SketchObject", "Sketch016")
sketch17.AttachmentSupport = (doc.getObject("XY_Plane014"), [""])
sketch17.MapMode = "FlatFace"
sketch17.AttachmentOffset = App.Placement(App.Vector(0, 0, 0.2), App.Rotation())
sketch17.addGeometry([
    Part.LineSegment(App.Vector(-1, 0.5, 0), App.Vector(-1, 0.3, 0)),
    Part.LineSegment(App.Vector(-1, 0.3, 0), App.Vector(-1.5, 0.3, 0)),
    Part.LineSegment(App.Vector(-1.5, 0.3, 0), App.Vector(-1.5, 0.5, 0)),
    Part.LineSegment(App.Vector(-1.5, 0.5, 0), App.Vector(-1, 0.5, 0)),
], False)
sketch17.addConstraint([
    Sketcher.Constraint("Coincident", 0, 2, 1, 1),
    Sketcher.Constraint("Coincident", 1, 2, 2, 1),
    Sketcher.Constraint("Coincident", 2, 2, 3, 1),
    Sketcher.Constraint("Coincident", 3, 2, 0, 1),
    Sketcher.Constraint("Vertical", 0),
    Sketcher.Constraint("Horizontal", 1),
    Sketcher.Constraint("Vertical", 2),
    Sketcher.Constraint("Horizontal", 3),
    Sketcher.Constraint("DistanceX", 1, 2, 1, 1, Q("0.5 mm")),
    Sketcher.Constraint("DistanceY", 0, 2, 0, 1, Q("0.2 mm")),
    Sketcher.Constraint("DistanceX", 0, 2, -1, 1, Q("1 mm")),
    Sketcher.Constraint("DistanceY", -1, 1, 0, 2, Q("0.3 mm")),
])
sketch17.setExpression("Constraints[8]", "Params.sketch17_width")
sketch17.setExpression("Constraints[9]", "Params.sketch17_height")
pad15 = body15.newObject("PartDesign::Pad", "Pad014")
pad15.Profile = sketch17
pad15.setExpression("Length", "Params.pad15_length")
pad15.Reversed = True
body16 = doc.addObject("PartDesign::Body", "Body015")

# Sketch on XY plane
sketch18 = body16.newObject("Sketcher::SketchObject", "Sketch017")
sketch18.AttachmentSupport = (doc.getObject("XY_Plane015"), [""])
sketch18.MapMode = "FlatFace"
sketch18.AttachmentOffset = App.Placement(App.Vector(0, 0, 0.2), App.Rotation())
sketch18.addGeometry([
    Part.LineSegment(App.Vector(-1, 0.9, 0), App.Vector(-1, 0.7, 0)),
    Part.LineSegment(App.Vector(-1, 0.7, 0), App.Vector(-1.5, 0.7, 0)),
    Part.LineSegment(App.Vector(-1.5, 0.7, 0), App.Vector(-1.5, 0.9, 0)),
    Part.LineSegment(App.Vector(-1.5, 0.9, 0), App.Vector(-1, 0.9, 0)),
], False)
sketch18.addConstraint([
    Sketcher.Constraint("Coincident", 0, 2, 1, 1),
    Sketcher.Constraint("Coincident", 1, 2, 2, 1),
    Sketcher.Constraint("Coincident", 2, 2, 3, 1),
    Sketcher.Constraint("Coincident", 3, 2, 0, 1),
    Sketcher.Constraint("Vertical", 0),
    Sketcher.Constraint("Horizontal", 1),
    Sketcher.Constraint("Vertical", 2),
    Sketcher.Constraint("Horizontal", 3),
    Sketcher.Constraint("DistanceX", 1, 2, 1, 1, Q("0.5 mm")),
    Sketcher.Constraint("DistanceY", 0, 2, 0, 1, Q("0.2 mm")),
    Sketcher.Constraint("DistanceX", 0, 2, -1, 1, Q("1 mm")),
    Sketcher.Constraint("DistanceY", -1, 1, 0, 2, Q("0.7 mm")),
])
sketch18.setExpression("Constraints[8]", "Params.sketch18_width")
sketch18.setExpression("Constraints[9]", "Params.sketch18_height")
pad16 = body16.newObject("PartDesign::Pad", "Pad015")
pad16.Profile = sketch18
pad16.setExpression("Length", "Params.pad16_length")
pad16.Reversed = True
body17 = doc.addObject("PartDesign::Body", "Body016")

# Sketch on XY plane
sketch19 = body17.newObject("Sketcher::SketchObject", "Sketch018")
sketch19.AttachmentSupport = (doc.getObject("XY_Plane016"), [""])
sketch19.MapMode = "FlatFace"
sketch19.AttachmentOffset = App.Placement(App.Vector(0, 0, 0.2), App.Rotation())
sketch19.addGeometry([
    Part.LineSegment(App.Vector(-0.7, 1.5, 0), App.Vector(-0.7, 1, 0)),
    Part.LineSegment(App.Vector(-0.7, 1, 0), App.Vector(-0.9, 1, 0)),
    Part.LineSegment(App.Vector(-0.9, 1, 0), App.Vector(-0.9, 1.5, 0)),
    Part.LineSegment(App.Vector(-0.9, 1.5, 0), App.Vector(-0.7, 1.5, 0)),
], False)
sketch19.addConstraint([
    Sketcher.Constraint("Coincident", 0, 2, 1, 1),
    Sketcher.Constraint("Coincident", 1, 2, 2, 1),
    Sketcher.Constraint("Coincident", 2, 2, 3, 1),
    Sketcher.Constraint("Coincident", 3, 2, 0, 1),
    Sketcher.Constraint("Vertical", 0),
    Sketcher.Constraint("Horizontal", 1),
    Sketcher.Constraint("Vertical", 2),
    Sketcher.Constraint("Horizontal", 3),
    Sketcher.Constraint("DistanceX", 1, 2, 1, 1, Q("0.2 mm")),
    Sketcher.Constraint("DistanceY", 0, 2, 0, 1, Q("0.5 mm")),
    Sketcher.Constraint("DistanceY", -1, 1, 0, 2, Q("1 mm")),
    Sketcher.Constraint("DistanceX", 0, 2, -1, 1, Q("0.7 mm")),
])
sketch19.setExpression("Constraints[8]", "Params.sketch19_width")
sketch19.setExpression("Constraints[9]", "Params.sketch19_height")
pad17 = body17.newObject("PartDesign::Pad", "Pad016")
pad17.Profile = sketch19
pad17.setExpression("Length", "Params.pad17_length")
pad17.Reversed = True
body18 = doc.addObject("PartDesign::Body", "Body017")

# Sketch on XY plane
sketch20 = body18.newObject("Sketcher::SketchObject", "Sketch019")
sketch20.AttachmentSupport = (doc.getObject("XY_Plane017"), [""])
sketch20.MapMode = "FlatFace"
sketch20.AttachmentOffset = App.Placement(App.Vector(0, 0, 0.2), App.Rotation())
sketch20.addGeometry([
    Part.LineSegment(App.Vector(-0.3, 1.5, 0), App.Vector(-0.3, 1, 0)),
    Part.LineSegment(App.Vector(-0.3, 1, 0), App.Vector(-0.5, 1, 0)),
    Part.LineSegment(App.Vector(-0.5, 1, 0), App.Vector(-0.5, 1.5, 0)),
    Part.LineSegment(App.Vector(-0.5, 1.5, 0), App.Vector(-0.3, 1.5, 0)),
], False)
sketch20.addConstraint([
    Sketcher.Constraint("Coincident", 0, 2, 1, 1),
    Sketcher.Constraint("Coincident", 1, 2, 2, 1),
    Sketcher.Constraint("Coincident", 2, 2, 3, 1),
    Sketcher.Constraint("Coincident", 3, 2, 0, 1),
    Sketcher.Constraint("Vertical", 0),
    Sketcher.Constraint("Horizontal", 1),
    Sketcher.Constraint("Vertical", 2),
    Sketcher.Constraint("Horizontal", 3),
    Sketcher.Constraint("DistanceX", 1, 2, 1, 1, Q("0.2 mm")),
    Sketcher.Constraint("DistanceY", 0, 2, 0, 1, Q("0.5 mm")),
    Sketcher.Constraint("DistanceY", -1, 1, 0, 2, Q("1 mm")),
    Sketcher.Constraint("DistanceX", 0, 2, -1, 1, Q("0.3 mm")),
])
sketch20.setExpression("Constraints[8]", "Params.sketch20_width")
sketch20.setExpression("Constraints[9]", "Params.sketch20_height")
pad18 = body18.newObject("PartDesign::Pad", "Pad017")
pad18.Profile = sketch20
pad18.setExpression("Length", "Params.pad18_length")
pad18.Reversed = True
body19 = doc.addObject("PartDesign::Body", "Body018")

# Sketch on XY plane
sketch21 = body19.newObject("Sketcher::SketchObject", "Sketch020")
sketch21.AttachmentSupport = (doc.getObject("XY_Plane018"), [""])
sketch21.MapMode = "FlatFace"
sketch21.AttachmentOffset = App.Placement(App.Vector(0, 0, 0.2), App.Rotation())
sketch21.addGeometry([
    Part.LineSegment(App.Vector(0.1, 1.5, 0), App.Vector(0.1, 1, 0)),
    Part.LineSegment(App.Vector(0.1, 1, 0), App.Vector(-0.1, 1, 0)),
    Part.LineSegment(App.Vector(-0.1, 1, 0), App.Vector(-0.1, 1.5, 0)),
    Part.LineSegment(App.Vector(-0.1, 1.5, 0), App.Vector(0.1, 1.5, 0)),
], False)
sketch21.addConstraint([
    Sketcher.Constraint("Coincident", 0, 2, 1, 1),
    Sketcher.Constraint("Coincident", 1, 2, 2, 1),
    Sketcher.Constraint("Coincident", 2, 2, 3, 1),
    Sketcher.Constraint("Coincident", 3, 2, 0, 1),
    Sketcher.Constraint("Vertical", 0),
    Sketcher.Constraint("Horizontal", 1),
    Sketcher.Constraint("Vertical", 2),
    Sketcher.Constraint("Horizontal", 3),
    Sketcher.Constraint("DistanceX", 1, 2, 1, 1, Q("0.2 mm")),
    Sketcher.Constraint("DistanceY", 0, 2, 0, 1, Q("0.5 mm")),
    Sketcher.Constraint("DistanceY", -1, 1, 0, 2, Q("1 mm")),
    Sketcher.Constraint("DistanceX", -1, 1, 0, 2, Q("0.1 mm")),
])
sketch21.setExpression("Constraints[8]", "Params.sketch21_width")
sketch21.setExpression("Constraints[9]", "Params.sketch21_height")
pad19 = body19.newObject("PartDesign::Pad", "Pad018")
pad19.Profile = sketch21
pad19.setExpression("Length", "Params.pad19_length")
pad19.Reversed = True
body20 = doc.addObject("PartDesign::Body", "Body019")

# Sketch on XY plane
sketch22 = body20.newObject("Sketcher::SketchObject", "Sketch021")
sketch22.AttachmentSupport = (doc.getObject("XY_Plane019"), [""])
sketch22.MapMode = "FlatFace"
sketch22.AttachmentOffset = App.Placement(App.Vector(0, 0, 0.2), App.Rotation())
sketch22.addGeometry([
    Part.LineSegment(App.Vector(0.5, 1.5, 0), App.Vector(0.5, 1, 0)),
    Part.LineSegment(App.Vector(0.5, 1, 0), App.Vector(0.3, 1, 0)),
    Part.LineSegment(App.Vector(0.3, 1, 0), App.Vector(0.3, 1.5, 0)),
    Part.LineSegment(App.Vector(0.3, 1.5, 0), App.Vector(0.5, 1.5, 0)),
], False)
sketch22.addConstraint([
    Sketcher.Constraint("Coincident", 0, 2, 1, 1),
    Sketcher.Constraint("Coincident", 1, 2, 2, 1),
    Sketcher.Constraint("Coincident", 2, 2, 3, 1),
    Sketcher.Constraint("Coincident", 3, 2, 0, 1),
    Sketcher.Constraint("Vertical", 0),
    Sketcher.Constraint("Horizontal", 1),
    Sketcher.Constraint("Vertical", 2),
    Sketcher.Constraint("Horizontal", 3),
    Sketcher.Constraint("DistanceX", 1, 2, 1, 1, Q("0.2 mm")),
    Sketcher.Constraint("DistanceY", 0, 2, 0, 1, Q("0.5 mm")),
    Sketcher.Constraint("DistanceY", -1, 1, 0, 2, Q("1 mm")),
    Sketcher.Constraint("DistanceX", -1, 1, 0, 2, Q("0.5 mm")),
])
sketch22.setExpression("Constraints[8]", "Params.sketch22_width")
sketch22.setExpression("Constraints[9]", "Params.sketch22_height")
pad20 = body20.newObject("PartDesign::Pad", "Pad019")
pad20.Profile = sketch22
pad20.setExpression("Length", "Params.pad20_length")
pad20.Reversed = True
body21 = doc.addObject("PartDesign::Body", "Body020")

# Sketch on XY plane
sketch23 = body21.newObject("Sketcher::SketchObject", "Sketch022")
sketch23.AttachmentSupport = (doc.getObject("XY_Plane020"), [""])
sketch23.MapMode = "FlatFace"
sketch23.AttachmentOffset = App.Placement(App.Vector(0, 0, 0.2), App.Rotation())
sketch23.addGeometry([
    Part.LineSegment(App.Vector(0.9, 1.5, 0), App.Vector(0.9, 1, 0)),
    Part.LineSegment(App.Vector(0.9, 1, 0), App.Vector(0.7, 1, 0)),
    Part.LineSegment(App.Vector(0.7, 1, 0), App.Vector(0.7, 1.5, 0)),
    Part.LineSegment(App.Vector(0.7, 1.5, 0), App.Vector(0.9, 1.5, 0)),
], False)
sketch23.addConstraint([
    Sketcher.Constraint("Coincident", 0, 2, 1, 1),
    Sketcher.Constraint("Coincident", 1, 2, 2, 1),
    Sketcher.Constraint("Coincident", 2, 2, 3, 1),
    Sketcher.Constraint("Coincident", 3, 2, 0, 1),
    Sketcher.Constraint("Vertical", 0),
    Sketcher.Constraint("Horizontal", 1),
    Sketcher.Constraint("Vertical", 2),
    Sketcher.Constraint("Horizontal", 3),
    Sketcher.Constraint("DistanceX", 1, 2, 1, 1, Q("0.2 mm")),
    Sketcher.Constraint("DistanceY", 0, 2, 0, 1, Q("0.5 mm")),
    Sketcher.Constraint("DistanceY", -1, 1, 0, 2, Q("1 mm")),
    Sketcher.Constraint("DistanceX", -1, 1, 0, 2, Q("0.9 mm")),
])
sketch23.setExpression("Constraints[8]", "Params.sketch23_width")
sketch23.setExpression("Constraints[9]", "Params.sketch23_height")
pad21 = body21.newObject("PartDesign::Pad", "Pad020")
pad21.Profile = sketch23
pad21.setExpression("Length", "Params.pad21_length")
pad21.Reversed = True

doc.recompute()
